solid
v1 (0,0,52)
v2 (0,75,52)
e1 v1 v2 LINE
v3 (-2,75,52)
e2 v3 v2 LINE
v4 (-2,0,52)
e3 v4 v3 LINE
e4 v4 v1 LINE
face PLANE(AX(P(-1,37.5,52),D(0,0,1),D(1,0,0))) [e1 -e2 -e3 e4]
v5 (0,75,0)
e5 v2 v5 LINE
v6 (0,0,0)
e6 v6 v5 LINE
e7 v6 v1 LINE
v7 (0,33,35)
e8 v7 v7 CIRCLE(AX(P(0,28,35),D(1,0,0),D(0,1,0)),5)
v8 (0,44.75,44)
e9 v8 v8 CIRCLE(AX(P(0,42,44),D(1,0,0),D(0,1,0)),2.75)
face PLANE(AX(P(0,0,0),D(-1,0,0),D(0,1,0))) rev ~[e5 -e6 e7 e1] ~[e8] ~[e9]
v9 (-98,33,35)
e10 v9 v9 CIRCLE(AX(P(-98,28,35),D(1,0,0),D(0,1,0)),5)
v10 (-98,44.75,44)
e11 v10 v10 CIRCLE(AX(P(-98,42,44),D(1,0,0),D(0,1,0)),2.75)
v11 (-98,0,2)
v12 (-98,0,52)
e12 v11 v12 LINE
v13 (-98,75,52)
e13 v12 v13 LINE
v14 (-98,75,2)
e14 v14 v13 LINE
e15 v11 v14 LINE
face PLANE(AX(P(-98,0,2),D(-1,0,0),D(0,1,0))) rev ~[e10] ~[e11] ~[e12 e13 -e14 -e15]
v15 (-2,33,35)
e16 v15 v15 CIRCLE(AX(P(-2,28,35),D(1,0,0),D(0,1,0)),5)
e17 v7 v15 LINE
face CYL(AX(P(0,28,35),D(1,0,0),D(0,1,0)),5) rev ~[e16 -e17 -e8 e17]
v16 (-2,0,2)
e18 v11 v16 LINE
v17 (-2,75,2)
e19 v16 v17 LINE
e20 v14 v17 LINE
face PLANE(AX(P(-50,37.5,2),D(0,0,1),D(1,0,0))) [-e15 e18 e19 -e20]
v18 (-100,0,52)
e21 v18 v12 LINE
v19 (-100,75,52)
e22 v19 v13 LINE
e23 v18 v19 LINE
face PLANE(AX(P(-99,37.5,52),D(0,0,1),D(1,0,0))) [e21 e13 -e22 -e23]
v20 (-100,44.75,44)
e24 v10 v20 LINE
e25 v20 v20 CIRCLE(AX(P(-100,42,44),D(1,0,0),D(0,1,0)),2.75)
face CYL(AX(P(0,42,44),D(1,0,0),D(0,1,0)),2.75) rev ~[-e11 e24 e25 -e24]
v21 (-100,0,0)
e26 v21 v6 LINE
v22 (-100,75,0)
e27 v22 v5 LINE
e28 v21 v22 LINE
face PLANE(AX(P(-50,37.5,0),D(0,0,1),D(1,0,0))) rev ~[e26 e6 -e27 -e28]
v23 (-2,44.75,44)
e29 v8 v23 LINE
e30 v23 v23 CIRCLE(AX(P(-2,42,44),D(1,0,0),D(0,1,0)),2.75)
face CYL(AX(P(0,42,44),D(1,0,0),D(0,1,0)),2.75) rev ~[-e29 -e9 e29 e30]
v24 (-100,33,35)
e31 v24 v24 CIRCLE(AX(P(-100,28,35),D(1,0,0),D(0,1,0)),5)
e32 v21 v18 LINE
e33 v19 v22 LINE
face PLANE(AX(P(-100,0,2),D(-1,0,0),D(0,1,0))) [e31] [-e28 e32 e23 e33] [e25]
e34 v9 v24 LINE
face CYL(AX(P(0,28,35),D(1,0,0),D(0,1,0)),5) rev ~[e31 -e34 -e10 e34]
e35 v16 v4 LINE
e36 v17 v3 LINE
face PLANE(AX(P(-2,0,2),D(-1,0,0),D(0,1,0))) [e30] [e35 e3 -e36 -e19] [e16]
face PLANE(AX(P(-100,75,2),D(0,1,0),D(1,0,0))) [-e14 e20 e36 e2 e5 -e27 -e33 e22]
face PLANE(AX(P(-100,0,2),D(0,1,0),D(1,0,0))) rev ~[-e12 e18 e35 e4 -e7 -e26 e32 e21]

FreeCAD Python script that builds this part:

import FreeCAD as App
import Part
import Sketcher


def add_polygon(sketch, points):
    """Adds a closed chain of lines whose ends are joined by coincident constraints."""
    first, n = sketch.GeometryCount, len(points)
    for a, b in zip(points, points[1:] + points[:1]):
        sketch.addGeometry(Part.LineSegment(App.Vector(*a, 0), App.Vector(*b, 0)), False)
    for i in range(n):
        sketch.addConstraint(Sketcher.Constraint("Coincident", first + i, 2, first + (i + 1) % n, 1))

doc = App.newDocument("Part")
params = doc.addObject("Spreadsheet::Sheet", "Params")
for row, (alias, value) in enumerate([
    ("sketch1_width", "100 mm"),
    ("sketch1_height", "75 mm"),
    ("pad1_length", "2 mm"),
    ("sketch2_width", "2 mm"),
    ("sketch2_height", "75 mm"),
    ("pad2_length", "50 mm"),
    ("sketch3_diameter", "10 mm"),
    ("sketch3_diameter2", "5.5 mm"),
    ("pocket1_length", "100 mm"),
], start=1):
    params.set(f"A{row}", alias)
    params.set(f"B{row}", "=" + value)
    params.setAlias(f"B{row}", alias)

body = doc.addObject("PartDesign::Body", "Body")

# Sketch on XY plane
sketch1 = body.newObject("Sketcher::SketchObject", "Sketch")
sketch1.AttachmentSupport = (doc.getObject("XY_Plane"), [""])
sketch1.MapMode = "FlatFace"
add_polygon(sketch1, [(-100, 75), (-100, 0), (0, 0), (0, 75)])  # lines 0-3
sketch1.addConstraint([
    Sketcher.Constraint("Vertical", 0),
    Sketcher.Constraint("Horizontal", 1),
    Sketcher.Constraint("Vertical", 2),
    Sketcher.Constraint("Horizontal", 3),
    Sketcher.Constraint("Coincident", 1, 2, -1, 1),
    Sketcher.Constraint("DistanceX", 1, 1, 1, 2, 100.0),
    Sketcher.Constraint("DistanceY", 0, 2, 0, 1, 75.0),
])
sketch1.setExpression("Constraints[9]", "Params.sketch1_width")
sketch1.setExpression("Constraints[10]", "Params.sketch1_height")
pad1 = body.newObject("PartDesign::Pad", "Pad")
pad1.Profile = sketch1
pad1.setExpression("Length", "Params.pad1_length")

# Sketch on XY plane
sketch2 = body.newObject("Sketcher::SketchObject", "Sketch001")
sketch2.AttachmentSupport = (doc.getObject("XY_Plane"), [""])
sketch2.MapMode = "FlatFace"
sketch2.AttachmentOffset = App.Placement(App.Vector(0, 0, 2), App.Rotation())
add_polygon(sketch2, [(-100, 75), (-100, 0), (-98, 0), (-98, 75)])  # lines 0-3
add_polygon(sketch2, [(-2, 75), (-2, 0), (0, 0), (0, 75)])  # lines 4-7
sketch2.addConstraint([
    Sketcher.Constraint("Vertical", 0),
    Sketcher.Constraint("Horizontal", 1),
    Sketcher.Constraint("Vertical", 2),
    Sketcher.Constraint("Horizontal", 3),
    Sketcher.Constraint("Vertical", 4),
    Sketcher.Constraint("Horizontal", 5),
    Sketcher.Constraint("Vertical", 6),
    Sketcher.Constraint("Horizontal", 7),
    Sketcher.Constraint("Coincident", 5, 2, -1, 1),
    Sketcher.Constraint("PointOnObject", 0, 2, -1),
    Sketcher.Constraint("Horizontal", 3, 2, 6, 2),
    Sketcher.Constraint("Equal", 3, 5),
    Sketcher.Constraint("DistanceX", 1, 1, 1, 2, 2.0),
    Sketcher.Constraint("DistanceY", 0, 2, 0, 1, 75.0),
    Sketcher.Constraint("DistanceX", 0, 2, -1, 1, 100.0),
])
sketch2.setExpression("Constraints[20]", "Params.sketch2_width")
sketch2.setExpression("Constraints[21]", "Params.sketch2_height")
pad2 = body.newObject("PartDesign::Pad", "Pad001")
pad2.Profile = sketch2
pad2.setExpression("Length", "Params.pad2_length")

# Sketch on YZ plane
sketch3 = body.newObject("Sketcher::SketchObject", "Sketch002")
sketch3.AttachmentSupport = (doc.getObject("YZ_Plane"), [""])
sketch3.MapMode = "FlatFace"
sketch3.addGeometry([
    Part.Circle(App.Vector(28, 35, 0), App.Vector(0, 0, 1), 5),
    Part.Circle(App.Vector(42, 44, 0), App.Vector(0, 0, 1), 2.8),
], False)
sketch3.addConstraint([
    Sketcher.Constraint("Diameter", 0, 10.0),
    Sketcher.Constraint("Diameter", 1, 5.5),
    Sketcher.Constraint("DistanceX", -1, 1, 0, 3, 28.0),
    Sketcher.Constraint("DistanceY", -1, 1, 0, 3, 35.0),
    Sketcher.Constraint("DistanceX", -1, 1, 1, 3, 42.0),
    Sketcher.Constraint("DistanceY", -1, 1, 1, 3, 44.0),
])
sketch3.setExpression("Constraints[0]", "Params.sketch3_diameter")
sketch3.setExpression("Constraints[1]", "Params.sketch3_diameter2")
pocket1 = body.newObject("PartDesign::Pocket", "Pocket")
pocket1.Profile = sketch3
pocket1.setExpression("Length", "Params.pocket1_length")

doc.recompute()
